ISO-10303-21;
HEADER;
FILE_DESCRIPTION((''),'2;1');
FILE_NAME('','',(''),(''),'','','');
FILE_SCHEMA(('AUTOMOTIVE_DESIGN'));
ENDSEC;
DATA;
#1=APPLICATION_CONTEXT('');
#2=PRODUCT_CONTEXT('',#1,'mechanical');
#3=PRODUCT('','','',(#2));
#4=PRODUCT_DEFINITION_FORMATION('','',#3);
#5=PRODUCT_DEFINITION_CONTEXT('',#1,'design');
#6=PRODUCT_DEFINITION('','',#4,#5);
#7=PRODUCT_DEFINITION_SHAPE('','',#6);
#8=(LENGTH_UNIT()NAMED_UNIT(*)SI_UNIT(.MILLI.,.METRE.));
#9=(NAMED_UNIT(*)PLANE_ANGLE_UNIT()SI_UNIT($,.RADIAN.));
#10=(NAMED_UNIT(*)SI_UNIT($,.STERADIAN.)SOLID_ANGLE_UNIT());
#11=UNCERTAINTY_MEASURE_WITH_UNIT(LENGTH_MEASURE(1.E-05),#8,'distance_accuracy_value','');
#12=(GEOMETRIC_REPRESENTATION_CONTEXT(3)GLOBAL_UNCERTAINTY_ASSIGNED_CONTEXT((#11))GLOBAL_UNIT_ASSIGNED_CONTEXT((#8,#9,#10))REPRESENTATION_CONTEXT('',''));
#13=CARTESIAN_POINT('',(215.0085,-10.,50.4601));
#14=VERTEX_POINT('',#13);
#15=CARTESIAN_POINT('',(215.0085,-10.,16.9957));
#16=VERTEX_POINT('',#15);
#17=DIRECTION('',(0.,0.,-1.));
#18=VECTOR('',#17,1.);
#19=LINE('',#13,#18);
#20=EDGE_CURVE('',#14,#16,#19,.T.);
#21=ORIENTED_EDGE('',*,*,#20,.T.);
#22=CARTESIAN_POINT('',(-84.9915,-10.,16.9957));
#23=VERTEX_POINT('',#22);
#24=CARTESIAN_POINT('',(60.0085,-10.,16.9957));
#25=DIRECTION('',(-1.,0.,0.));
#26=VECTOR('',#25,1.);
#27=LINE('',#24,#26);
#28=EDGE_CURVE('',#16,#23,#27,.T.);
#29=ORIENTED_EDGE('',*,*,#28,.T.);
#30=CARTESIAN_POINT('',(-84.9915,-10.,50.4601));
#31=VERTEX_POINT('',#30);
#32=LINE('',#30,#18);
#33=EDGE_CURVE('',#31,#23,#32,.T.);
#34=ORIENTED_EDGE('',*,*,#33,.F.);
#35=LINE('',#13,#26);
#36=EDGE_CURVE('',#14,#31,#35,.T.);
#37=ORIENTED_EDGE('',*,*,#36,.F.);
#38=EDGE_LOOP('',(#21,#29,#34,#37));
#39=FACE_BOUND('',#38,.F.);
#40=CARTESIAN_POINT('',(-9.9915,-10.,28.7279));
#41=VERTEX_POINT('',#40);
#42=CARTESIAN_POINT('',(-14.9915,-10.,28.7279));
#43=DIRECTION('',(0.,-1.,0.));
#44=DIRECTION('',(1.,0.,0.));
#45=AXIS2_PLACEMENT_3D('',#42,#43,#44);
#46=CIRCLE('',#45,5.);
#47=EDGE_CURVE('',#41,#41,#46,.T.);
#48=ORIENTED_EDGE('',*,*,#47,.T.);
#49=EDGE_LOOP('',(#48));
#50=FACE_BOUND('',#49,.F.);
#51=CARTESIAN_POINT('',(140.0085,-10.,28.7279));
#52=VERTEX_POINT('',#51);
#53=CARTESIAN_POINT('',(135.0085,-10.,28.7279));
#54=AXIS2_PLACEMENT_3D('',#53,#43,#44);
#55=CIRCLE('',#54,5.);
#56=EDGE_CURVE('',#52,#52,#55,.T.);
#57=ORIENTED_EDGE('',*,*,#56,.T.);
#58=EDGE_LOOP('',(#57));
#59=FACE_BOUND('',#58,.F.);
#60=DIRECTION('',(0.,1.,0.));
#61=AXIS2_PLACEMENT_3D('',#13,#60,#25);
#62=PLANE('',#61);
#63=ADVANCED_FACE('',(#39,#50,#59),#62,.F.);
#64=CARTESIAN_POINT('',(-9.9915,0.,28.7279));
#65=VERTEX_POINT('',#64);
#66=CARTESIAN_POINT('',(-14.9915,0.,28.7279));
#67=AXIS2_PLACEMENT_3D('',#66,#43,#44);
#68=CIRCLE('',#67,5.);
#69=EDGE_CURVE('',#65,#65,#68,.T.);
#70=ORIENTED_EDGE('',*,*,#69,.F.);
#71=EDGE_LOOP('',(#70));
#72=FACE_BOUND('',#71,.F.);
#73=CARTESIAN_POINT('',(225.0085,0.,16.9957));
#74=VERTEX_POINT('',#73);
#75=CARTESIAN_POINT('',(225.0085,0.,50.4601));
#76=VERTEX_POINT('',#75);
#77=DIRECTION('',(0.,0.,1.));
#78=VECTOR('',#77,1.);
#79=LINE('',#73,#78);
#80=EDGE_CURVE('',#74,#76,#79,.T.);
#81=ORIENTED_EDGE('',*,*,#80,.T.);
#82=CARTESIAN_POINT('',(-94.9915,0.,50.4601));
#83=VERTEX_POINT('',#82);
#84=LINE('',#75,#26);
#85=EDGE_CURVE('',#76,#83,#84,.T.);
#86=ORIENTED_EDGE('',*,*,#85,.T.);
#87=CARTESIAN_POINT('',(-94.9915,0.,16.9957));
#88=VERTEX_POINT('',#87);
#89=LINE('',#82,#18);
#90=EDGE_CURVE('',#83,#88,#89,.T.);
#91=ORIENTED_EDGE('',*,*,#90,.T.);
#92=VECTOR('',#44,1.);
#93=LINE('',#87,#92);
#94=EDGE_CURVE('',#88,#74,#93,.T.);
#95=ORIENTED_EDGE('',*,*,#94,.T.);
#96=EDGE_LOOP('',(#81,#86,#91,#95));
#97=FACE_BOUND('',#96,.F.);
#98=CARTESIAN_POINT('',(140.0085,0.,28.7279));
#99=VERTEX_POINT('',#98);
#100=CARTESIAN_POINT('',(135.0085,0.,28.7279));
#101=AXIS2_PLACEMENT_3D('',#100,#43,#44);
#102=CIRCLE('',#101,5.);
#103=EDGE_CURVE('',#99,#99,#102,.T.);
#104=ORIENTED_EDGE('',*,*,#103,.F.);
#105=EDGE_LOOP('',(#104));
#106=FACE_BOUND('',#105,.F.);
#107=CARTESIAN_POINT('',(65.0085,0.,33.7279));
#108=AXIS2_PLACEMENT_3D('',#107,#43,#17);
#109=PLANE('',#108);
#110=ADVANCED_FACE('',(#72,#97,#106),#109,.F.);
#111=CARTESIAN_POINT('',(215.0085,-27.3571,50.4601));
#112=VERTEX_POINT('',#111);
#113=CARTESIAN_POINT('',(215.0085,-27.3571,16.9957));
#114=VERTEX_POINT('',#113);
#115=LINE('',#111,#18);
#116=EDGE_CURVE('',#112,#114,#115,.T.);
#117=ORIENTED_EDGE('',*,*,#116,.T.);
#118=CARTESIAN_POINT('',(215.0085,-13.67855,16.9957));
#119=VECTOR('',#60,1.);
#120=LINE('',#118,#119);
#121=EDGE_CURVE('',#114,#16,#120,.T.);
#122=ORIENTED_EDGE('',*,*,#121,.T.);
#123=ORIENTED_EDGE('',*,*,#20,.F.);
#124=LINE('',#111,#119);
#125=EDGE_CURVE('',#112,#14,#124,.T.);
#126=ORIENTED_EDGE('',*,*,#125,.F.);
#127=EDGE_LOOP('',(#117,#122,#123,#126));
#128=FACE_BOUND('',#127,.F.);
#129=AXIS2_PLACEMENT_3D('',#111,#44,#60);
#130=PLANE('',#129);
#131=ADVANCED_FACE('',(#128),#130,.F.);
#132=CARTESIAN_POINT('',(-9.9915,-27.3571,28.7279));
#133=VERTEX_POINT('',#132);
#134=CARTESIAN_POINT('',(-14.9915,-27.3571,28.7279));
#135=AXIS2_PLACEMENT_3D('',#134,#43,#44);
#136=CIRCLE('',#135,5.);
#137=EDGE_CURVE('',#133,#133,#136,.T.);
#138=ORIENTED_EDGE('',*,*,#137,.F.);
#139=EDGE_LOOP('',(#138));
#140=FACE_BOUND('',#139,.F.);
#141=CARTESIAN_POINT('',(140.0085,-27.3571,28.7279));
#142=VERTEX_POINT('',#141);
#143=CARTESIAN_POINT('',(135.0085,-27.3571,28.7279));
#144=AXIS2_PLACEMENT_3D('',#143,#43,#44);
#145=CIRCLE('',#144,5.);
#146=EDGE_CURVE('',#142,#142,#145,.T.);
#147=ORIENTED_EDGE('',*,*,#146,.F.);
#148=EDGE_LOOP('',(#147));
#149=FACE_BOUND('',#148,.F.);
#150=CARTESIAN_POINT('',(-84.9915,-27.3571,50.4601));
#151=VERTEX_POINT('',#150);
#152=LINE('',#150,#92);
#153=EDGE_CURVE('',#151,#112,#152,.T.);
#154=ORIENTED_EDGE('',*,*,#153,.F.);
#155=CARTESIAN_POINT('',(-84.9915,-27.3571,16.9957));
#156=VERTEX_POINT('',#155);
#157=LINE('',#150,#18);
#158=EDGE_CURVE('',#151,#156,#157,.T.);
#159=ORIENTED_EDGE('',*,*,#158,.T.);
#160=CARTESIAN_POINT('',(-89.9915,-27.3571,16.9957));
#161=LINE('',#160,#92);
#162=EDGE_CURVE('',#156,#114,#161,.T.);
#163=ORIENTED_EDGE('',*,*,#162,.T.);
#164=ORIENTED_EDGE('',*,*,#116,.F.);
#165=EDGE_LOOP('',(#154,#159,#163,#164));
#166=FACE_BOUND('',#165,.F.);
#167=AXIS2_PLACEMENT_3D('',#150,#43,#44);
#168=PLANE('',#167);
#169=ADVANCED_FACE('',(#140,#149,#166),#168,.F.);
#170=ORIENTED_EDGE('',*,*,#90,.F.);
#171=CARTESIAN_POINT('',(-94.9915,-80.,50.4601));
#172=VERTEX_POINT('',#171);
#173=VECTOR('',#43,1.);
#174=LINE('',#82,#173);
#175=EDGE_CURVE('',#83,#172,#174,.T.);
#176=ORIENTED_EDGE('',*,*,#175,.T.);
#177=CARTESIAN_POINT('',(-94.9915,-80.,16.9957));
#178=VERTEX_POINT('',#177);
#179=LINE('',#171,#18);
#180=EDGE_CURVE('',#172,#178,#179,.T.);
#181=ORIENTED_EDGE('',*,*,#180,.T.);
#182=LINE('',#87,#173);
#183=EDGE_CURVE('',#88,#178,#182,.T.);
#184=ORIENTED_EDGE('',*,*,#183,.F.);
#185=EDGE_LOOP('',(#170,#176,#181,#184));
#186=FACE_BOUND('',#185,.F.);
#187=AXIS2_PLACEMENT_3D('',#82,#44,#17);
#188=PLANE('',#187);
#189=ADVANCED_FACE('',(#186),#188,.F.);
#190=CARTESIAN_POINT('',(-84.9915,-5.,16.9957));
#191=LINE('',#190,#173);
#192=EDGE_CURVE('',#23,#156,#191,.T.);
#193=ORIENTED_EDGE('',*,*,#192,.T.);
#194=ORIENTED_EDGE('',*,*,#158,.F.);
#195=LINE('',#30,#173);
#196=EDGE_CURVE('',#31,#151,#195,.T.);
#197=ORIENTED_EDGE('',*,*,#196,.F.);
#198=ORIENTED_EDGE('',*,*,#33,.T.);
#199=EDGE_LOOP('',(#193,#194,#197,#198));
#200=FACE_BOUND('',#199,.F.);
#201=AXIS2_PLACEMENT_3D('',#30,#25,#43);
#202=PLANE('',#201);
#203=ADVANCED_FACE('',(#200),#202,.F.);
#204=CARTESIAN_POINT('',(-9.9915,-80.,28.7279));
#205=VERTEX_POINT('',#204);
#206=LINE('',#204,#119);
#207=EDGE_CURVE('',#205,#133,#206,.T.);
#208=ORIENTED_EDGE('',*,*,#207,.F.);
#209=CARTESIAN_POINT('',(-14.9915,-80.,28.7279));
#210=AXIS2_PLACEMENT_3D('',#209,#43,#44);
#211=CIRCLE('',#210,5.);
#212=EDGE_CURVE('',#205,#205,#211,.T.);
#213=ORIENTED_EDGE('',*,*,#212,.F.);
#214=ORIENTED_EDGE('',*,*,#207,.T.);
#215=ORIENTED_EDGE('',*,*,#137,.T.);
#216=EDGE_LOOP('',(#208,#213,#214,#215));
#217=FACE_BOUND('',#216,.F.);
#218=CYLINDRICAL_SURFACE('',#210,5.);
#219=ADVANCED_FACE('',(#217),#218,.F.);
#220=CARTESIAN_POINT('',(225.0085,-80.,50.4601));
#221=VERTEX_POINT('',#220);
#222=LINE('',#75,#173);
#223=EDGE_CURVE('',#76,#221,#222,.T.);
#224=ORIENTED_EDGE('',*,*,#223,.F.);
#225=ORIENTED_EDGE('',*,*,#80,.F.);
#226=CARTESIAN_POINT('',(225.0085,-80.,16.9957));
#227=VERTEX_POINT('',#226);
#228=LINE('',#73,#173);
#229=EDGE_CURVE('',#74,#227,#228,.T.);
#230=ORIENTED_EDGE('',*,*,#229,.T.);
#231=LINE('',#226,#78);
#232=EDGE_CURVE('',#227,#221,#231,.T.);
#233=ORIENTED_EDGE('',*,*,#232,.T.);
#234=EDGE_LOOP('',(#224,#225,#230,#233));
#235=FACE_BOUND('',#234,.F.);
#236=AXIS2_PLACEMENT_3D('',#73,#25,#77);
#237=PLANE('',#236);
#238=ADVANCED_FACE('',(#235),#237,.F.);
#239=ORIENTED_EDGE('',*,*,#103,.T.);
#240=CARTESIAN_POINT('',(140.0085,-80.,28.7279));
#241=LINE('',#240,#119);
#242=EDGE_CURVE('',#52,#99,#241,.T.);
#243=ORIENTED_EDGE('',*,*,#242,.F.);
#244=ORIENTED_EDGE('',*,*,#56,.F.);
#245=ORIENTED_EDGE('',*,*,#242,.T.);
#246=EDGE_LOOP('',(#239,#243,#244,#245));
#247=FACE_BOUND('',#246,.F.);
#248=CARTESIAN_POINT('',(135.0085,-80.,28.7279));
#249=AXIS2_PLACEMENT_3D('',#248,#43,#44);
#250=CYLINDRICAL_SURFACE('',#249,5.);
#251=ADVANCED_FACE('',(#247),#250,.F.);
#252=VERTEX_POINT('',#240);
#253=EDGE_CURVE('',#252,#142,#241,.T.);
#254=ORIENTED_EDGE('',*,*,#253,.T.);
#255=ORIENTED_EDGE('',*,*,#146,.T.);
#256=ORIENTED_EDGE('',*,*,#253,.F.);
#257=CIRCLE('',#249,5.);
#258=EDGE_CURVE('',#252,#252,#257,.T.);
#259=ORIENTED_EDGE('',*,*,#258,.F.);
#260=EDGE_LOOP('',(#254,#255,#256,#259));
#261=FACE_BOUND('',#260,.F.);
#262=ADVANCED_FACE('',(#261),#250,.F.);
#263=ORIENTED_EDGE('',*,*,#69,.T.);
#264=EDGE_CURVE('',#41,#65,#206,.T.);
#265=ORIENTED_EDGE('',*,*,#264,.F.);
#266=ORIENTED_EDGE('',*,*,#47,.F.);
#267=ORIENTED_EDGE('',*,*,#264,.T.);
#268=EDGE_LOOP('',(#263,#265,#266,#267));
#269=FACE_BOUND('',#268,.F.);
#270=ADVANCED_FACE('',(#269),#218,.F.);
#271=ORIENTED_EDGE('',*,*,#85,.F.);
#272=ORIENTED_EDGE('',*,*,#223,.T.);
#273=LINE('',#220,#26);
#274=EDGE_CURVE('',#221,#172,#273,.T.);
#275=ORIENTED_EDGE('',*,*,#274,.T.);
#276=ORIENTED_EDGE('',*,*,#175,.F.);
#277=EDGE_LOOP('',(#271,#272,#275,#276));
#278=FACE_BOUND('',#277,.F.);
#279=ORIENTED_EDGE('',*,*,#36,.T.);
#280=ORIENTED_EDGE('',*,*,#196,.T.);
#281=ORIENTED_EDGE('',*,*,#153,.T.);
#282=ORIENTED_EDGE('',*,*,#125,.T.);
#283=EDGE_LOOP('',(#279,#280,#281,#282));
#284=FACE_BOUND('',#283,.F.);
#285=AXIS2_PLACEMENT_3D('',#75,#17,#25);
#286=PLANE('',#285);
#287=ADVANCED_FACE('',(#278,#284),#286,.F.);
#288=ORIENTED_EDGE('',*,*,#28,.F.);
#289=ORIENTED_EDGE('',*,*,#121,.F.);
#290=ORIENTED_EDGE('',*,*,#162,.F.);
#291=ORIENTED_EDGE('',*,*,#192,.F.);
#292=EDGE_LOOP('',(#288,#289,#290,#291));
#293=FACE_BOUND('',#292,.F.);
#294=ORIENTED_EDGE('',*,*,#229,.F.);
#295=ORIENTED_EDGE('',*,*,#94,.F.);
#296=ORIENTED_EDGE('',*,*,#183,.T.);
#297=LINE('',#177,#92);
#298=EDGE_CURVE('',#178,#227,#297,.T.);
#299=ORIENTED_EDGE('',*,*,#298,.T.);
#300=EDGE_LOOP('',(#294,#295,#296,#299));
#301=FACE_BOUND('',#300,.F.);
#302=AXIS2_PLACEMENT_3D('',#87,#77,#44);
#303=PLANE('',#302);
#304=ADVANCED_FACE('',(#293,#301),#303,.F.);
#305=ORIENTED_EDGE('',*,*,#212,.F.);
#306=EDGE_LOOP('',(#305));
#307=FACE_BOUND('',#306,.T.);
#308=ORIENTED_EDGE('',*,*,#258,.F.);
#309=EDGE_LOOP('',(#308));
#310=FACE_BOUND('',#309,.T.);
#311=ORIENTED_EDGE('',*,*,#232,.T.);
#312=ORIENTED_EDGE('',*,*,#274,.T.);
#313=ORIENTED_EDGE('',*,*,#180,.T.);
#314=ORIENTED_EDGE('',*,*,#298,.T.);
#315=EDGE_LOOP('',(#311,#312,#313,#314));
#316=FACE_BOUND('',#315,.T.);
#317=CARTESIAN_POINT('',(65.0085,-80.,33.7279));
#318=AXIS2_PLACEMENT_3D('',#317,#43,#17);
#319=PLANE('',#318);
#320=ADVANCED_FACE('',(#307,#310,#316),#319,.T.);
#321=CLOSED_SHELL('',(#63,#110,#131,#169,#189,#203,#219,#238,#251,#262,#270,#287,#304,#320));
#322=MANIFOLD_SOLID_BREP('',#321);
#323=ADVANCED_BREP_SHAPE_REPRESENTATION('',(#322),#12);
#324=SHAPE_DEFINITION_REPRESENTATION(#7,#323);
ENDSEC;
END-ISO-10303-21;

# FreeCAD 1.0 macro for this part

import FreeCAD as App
import Part
import Sketcher
Q = App.Units.Quantity

doc = App.newDocument("Part")
params = doc.addObject("Spreadsheet::Sheet", "Params")
for row, (alias, value) in enumerate([
    ("sketch1_width", "320 mm"),
    ("pad1_length", "80 mm"),
    ("sketch2_width", "300 mm"),
    ("sketch3_diameter", "10 mm"),
], start=1):
    params.set(f"A{row}", alias)
    params.set(f"B{row}", "=" + value)
    params.setAlias(f"B{row}", alias)

body = doc.addObject("PartDesign::Body", "Body")

# Sketch on XZ plane
sketch1 = body.newObject("Sketcher::SketchObject", "Sketch")
sketch1.AttachmentSupport = (doc.getObject("XZ_Plane"), [""])
sketch1.MapMode = "FlatFace"
sketch1.addGeometry(Part.LineSegment(App.Vector(-95, 50, 0), App.Vector(-95, 17, 0)), False)
sketch1.addGeometry(Part.LineSegment(App.Vector(-95, 17, 0), App.Vector(225, 17, 0)), False)
sketch1.addGeometry(Part.LineSegment(App.Vector(225, 17, 0), App.Vector(225, 50, 0)), False)
sketch1.addGeometry(Part.LineSegment(App.Vector(225, 50, 0), App.Vector(-95, 50, 0)), False)
sketch1.addConstraint(Sketcher.Constraint("Coincident", 0, 2, 1, 1))
sketch1.addConstraint(Sketcher.Constraint("Coincident", 1, 2, 2, 1))
sketch1.addConstraint(Sketcher.Constraint("Coincident", 2, 2, 3, 1))
sketch1.addConstraint(Sketcher.Constraint("Coincident", 3, 2, 0, 1))
sketch1.addConstraint(Sketcher.Constraint("Vertical", 0))
sketch1.addConstraint(Sketcher.Constraint("Horizontal", 1))
sketch1.addConstraint(Sketcher.Constraint("Vertical", 2))
sketch1.addConstraint(Sketcher.Constraint("Horizontal", 3))
sketch1.addConstraint(Sketcher.Constraint("DistanceX", 1, 1, 1, 2, Q("320 mm")))
sketch1.addConstraint(Sketcher.Constraint("DistanceX", 0, 2, -1, 1, Q("94.9915 mm")))
sketch1.addConstraint(Sketcher.Constraint("DistanceY", -1, 1, 2, 2, Q("50.46 mm")))
sketch1.addConstraint(Sketcher.Constraint("DistanceY", 0, 2, 0, 1, Q("33.4644 mm")))
sketch1.setExpression("Constraints[8]", "Params.sketch1_width")
pad1 = body.newObject("PartDesign::Pad", "Pad")
pad1.Profile = sketch1
pad1.setExpression("Length", "Params.pad1_length")

# Sketch on XY plane
sketch2 = body.newObject("Sketcher::SketchObject", "Sketch001")
sketch2.AttachmentSupport = (doc.getObject("XY_Plane"), [""])
sketch2.MapMode = "FlatFace"
sketch2.AttachmentOffset = App.Placement(App.Vector(0, 0, 50.4601), App.Rotation())
sketch2.addGeometry(Part.LineSegment(App.Vector(-85, -10, 0), App.Vector(-85, -27, 0)), False)
sketch2.addGeometry(Part.LineSegment(App.Vector(-85, -27, 0), App.Vector(215, -27, 0)), False)
sketch2.addGeometry(Part.LineSegment(App.Vector(215, -27, 0), App.Vector(215, -10, 0)), False)
sketch2.addGeometry(Part.LineSegment(App.Vector(215, -10, 0), App.Vector(-85, -10, 0)), False)
sketch2.addConstraint(Sketcher.Constraint("Coincident", 0, 2, 1, 1))
sketch2.addConstraint(Sketcher.Constraint("Coincident", 1, 2, 2, 1))
sketch2.addConstraint(Sketcher.Constraint("Coincident", 2, 2, 3, 1))
sketch2.addConstraint(Sketcher.Constraint("Coincident", 3, 2, 0, 1))
sketch2.addConstraint(Sketcher.Constraint("Vertical", 0))
sketch2.addConstraint(Sketcher.Constraint("Horizontal", 1))
sketch2.addConstraint(Sketcher.Constraint("Vertical", 2))
sketch2.addConstraint(Sketcher.Constraint("Horizontal", 3))
sketch2.addConstraint(Sketcher.Constraint("DistanceX", 1, 1, 1, 2, Q("300 mm")))
sketch2.addConstraint(Sketcher.Constraint("DistanceY", 2, 2, -1, 1, Q("10 mm")))
sketch2.addConstraint(Sketcher.Constraint("DistanceY", 0, 2, 0, 1, Q("17.357 mm")))
sketch2.addConstraint(Sketcher.Constraint("DistanceX", 0, 2, -1, 1, Q("84.9915 mm")))
sketch2.setExpression("Constraints[8]", "Params.sketch2_width")
pocket1 = body.newObject("PartDesign::Pocket", "Pocket")
pocket1.Profile = sketch2
pocket1.Type = "ThroughAll"

# Sketch on XZ plane
sketch3 = body.newObject("Sketcher::SketchObject", "Sketch002")
sketch3.AttachmentSupport = (doc.getObject("XZ_Plane"), [""])
sketch3.MapMode = "FlatFace"
sketch3.AttachmentOffset = App.Placement(App.Vector(0, 0, 80), App.Rotation())
sketch3.addGeometry(Part.Circle(App.Vector(135, 29, 0), App.Vector(0, 0, 1), 5), False)
sketch3.addGeometry(Part.Circle(App.Vector(-15, 29, 0), App.Vector(0, 0, 1), 5), False)
sketch3.addConstraint(Sketcher.Constraint("Equal", 0, 1))
sketch3.addConstraint(Sketcher.Constraint("Horizontal", 0, 3, 1, 3))
sketch3.addConstraint(Sketcher.Constraint("Diameter", 0, Q("10 mm")))
sketch3.addConstraint(Sketcher.Constraint("DistanceX", 1, 3, 0, 3, Q("150 mm")))
sketch3.addConstraint(Sketcher.Constraint("DistanceY", -1, 1, 0, 3, Q("28.728 mm")))
sketch3.addConstraint(Sketcher.Constraint("DistanceX", -1, 1, 0, 3, Q("135.0085 mm")))
sketch3.setExpression("Constraints[2]", "Params.sketch3_diameter")
pocket2 = body.newObject("PartDesign::Pocket", "Pocket001")
pocket2.Profile = sketch3
pocket2.Type = "ThroughAll"

doc.recompute()
